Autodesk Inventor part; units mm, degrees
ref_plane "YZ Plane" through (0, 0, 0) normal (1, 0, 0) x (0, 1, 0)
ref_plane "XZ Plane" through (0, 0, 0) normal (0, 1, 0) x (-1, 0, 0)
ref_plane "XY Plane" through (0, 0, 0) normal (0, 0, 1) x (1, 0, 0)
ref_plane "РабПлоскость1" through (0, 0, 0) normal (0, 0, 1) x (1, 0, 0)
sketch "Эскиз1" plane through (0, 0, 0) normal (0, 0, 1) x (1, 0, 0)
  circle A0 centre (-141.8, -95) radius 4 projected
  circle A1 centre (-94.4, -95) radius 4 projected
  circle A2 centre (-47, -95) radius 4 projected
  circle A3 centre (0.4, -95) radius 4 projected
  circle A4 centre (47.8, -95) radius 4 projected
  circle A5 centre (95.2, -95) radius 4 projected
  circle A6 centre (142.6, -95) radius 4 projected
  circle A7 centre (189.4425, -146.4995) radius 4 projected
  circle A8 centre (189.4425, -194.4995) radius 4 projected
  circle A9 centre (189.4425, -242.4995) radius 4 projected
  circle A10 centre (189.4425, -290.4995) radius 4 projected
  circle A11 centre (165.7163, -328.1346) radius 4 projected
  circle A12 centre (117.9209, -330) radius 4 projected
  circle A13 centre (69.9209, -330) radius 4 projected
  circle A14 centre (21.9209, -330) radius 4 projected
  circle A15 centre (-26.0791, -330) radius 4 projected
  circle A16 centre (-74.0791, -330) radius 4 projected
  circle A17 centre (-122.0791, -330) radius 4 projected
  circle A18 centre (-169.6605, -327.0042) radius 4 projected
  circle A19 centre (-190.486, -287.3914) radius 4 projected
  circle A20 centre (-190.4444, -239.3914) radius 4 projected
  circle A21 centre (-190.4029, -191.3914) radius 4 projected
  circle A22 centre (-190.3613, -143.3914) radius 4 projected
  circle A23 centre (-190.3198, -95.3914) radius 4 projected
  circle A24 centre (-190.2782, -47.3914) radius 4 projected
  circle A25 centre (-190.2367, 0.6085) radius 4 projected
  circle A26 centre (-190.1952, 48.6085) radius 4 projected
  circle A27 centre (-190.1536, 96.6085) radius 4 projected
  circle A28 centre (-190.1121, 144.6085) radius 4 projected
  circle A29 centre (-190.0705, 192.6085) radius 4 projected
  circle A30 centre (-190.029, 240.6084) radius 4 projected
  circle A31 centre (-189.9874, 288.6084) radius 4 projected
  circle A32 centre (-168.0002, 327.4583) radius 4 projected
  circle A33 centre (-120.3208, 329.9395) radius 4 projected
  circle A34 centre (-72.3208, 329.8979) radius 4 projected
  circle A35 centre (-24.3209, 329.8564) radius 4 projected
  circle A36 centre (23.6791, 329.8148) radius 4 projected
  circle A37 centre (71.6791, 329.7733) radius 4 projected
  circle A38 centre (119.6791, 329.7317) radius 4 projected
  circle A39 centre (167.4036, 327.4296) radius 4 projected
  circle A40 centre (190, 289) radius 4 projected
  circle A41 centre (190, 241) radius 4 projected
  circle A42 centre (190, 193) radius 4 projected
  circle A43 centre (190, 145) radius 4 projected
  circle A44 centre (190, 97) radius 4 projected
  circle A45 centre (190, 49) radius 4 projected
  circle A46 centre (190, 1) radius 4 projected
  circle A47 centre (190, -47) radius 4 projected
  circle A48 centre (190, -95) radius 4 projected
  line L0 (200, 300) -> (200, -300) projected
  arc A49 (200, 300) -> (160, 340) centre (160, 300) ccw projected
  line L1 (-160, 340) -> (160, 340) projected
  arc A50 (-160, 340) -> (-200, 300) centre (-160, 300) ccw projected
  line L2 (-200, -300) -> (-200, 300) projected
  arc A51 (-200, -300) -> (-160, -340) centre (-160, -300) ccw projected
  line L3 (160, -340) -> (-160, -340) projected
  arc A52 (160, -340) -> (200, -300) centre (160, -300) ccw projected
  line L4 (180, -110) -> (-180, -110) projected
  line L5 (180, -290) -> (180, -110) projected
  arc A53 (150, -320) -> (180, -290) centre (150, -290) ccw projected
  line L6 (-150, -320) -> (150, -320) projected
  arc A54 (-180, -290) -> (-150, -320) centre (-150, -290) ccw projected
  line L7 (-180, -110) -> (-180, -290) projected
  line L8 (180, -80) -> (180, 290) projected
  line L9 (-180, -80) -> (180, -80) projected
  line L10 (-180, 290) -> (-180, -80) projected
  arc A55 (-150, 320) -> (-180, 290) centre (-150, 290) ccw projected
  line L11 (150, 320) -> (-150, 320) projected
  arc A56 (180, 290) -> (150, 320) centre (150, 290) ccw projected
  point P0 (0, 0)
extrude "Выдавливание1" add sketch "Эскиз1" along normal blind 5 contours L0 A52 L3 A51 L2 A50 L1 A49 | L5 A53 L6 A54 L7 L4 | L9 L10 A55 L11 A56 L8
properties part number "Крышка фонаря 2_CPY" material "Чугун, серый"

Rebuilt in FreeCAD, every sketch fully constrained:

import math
import FreeCAD as App
import Part
import Sketcher

doc = App.newDocument("Part")
body = doc.addObject("PartDesign::Body", "Body")

sketch1 = body.newObject("Sketcher::SketchObject", "Sketch")
sketch1.AttachmentSupport = (doc.getObject("XY_Plane"), [""])
sketch1.MapMode = "FlatFace"
sketch1.addGeometry(Part.LineSegment(App.Vector(200, -300, 0), App.Vector(200, 300, 0)), False)
sketch1.addGeometry(Part.ArcOfCircle(Part.Circle(App.Vector(160, 300, 0), App.Vector(0, 0, 1), 40), math.radians(0), math.radians(90)), False)
sketch1.addGeometry(Part.LineSegment(App.Vector(160, 340, 0), App.Vector(-160, 340, 0)), False)
sketch1.addGeometry(Part.ArcOfCircle(Part.Circle(App.Vector(-160, 300, 0), App.Vector(0, 0, 1), 40), math.radians(90), math.radians(180)), False)
sketch1.addGeometry(Part.LineSegment(App.Vector(-200, 300, 0), App.Vector(-200, -300, 0)), False)
sketch1.addGeometry(Part.ArcOfCircle(Part.Circle(App.Vector(-160, -300, 0), App.Vector(0, 0, 1), 40), math.radians(180), math.radians(270)), False)
sketch1.addGeometry(Part.LineSegment(App.Vector(-160, -340, 0), App.Vector(160, -340, 0)), False)
sketch1.addGeometry(Part.ArcOfCircle(Part.Circle(App.Vector(160, -300, 0), App.Vector(0, 0, 1), 40), math.radians(-90), math.radians(0)), False)
sketch1.addGeometry(Part.Circle(App.Vector(-169.7, -327, 0), App.Vector(0, 0, 1), 4), False)
sketch1.addGeometry(Part.Circle(App.Vector(-190.5, -287.4, 0), App.Vector(0, 0, 1), 4), False)
sketch1.addGeometry(Part.Circle(App.Vector(-122.1, -330, 0), App.Vector(0, 0, 1), 4), False)
sketch1.addGeometry(Part.Circle(App.Vector(-190.4, -239.4, 0), App.Vector(0, 0, 1), 4), False)
sketch1.addGeometry(Part.Circle(App.Vector(-190.4, -191.4, 0), App.Vector(0, 0, 1), 4), False)
sketch1.addGeometry(Part.Circle(App.Vector(-74.1, -330, 0), App.Vector(0, 0, 1), 4), False)
sketch1.addGeometry(Part.Circle(App.Vector(-26.1, -330, 0), App.Vector(0, 0, 1), 4), False)
sketch1.addGeometry(Part.Circle(App.Vector(-190.4, -143.4, 0), App.Vector(0, 0, 1), 4), False)
sketch1.addGeometry(Part.Circle(App.Vector(-190.3, -95.4, 0), App.Vector(0, 0, 1), 4), False)
sketch1.addGeometry(Part.Circle(App.Vector(-141.8, -95, 0), App.Vector(0, 0, 1), 4), False)
sketch1.addGeometry(Part.Circle(App.Vector(-190.3, -47.4, 0), App.Vector(0, 0, 1), 4), False)
sketch1.addGeometry(Part.Circle(App.Vector(-94.4, -95, 0), App.Vector(0, 0, 1), 4), False)
sketch1.addGeometry(Part.Circle(App.Vector(-47, -95, 0), App.Vector(0, 0, 1), 4), False)
sketch1.addGeometry(Part.Circle(App.Vector(21.9, -330, 0), App.Vector(0, 0, 1), 4), False)
sketch1.addGeometry(Part.Circle(App.Vector(69.9, -330, 0), App.Vector(0, 0, 1), 4), False)
sketch1.addGeometry(Part.Circle(App.Vector(117.9, -330, 0), App.Vector(0, 0, 1), 4), False)
sketch1.addGeometry(Part.Circle(App.Vector(165.7, -328.1, 0), App.Vector(0, 0, 1), 4), False)
sketch1.addGeometry(Part.Circle(App.Vector(189.4, -290.5, 0), App.Vector(0, 0, 1), 4), False)
sketch1.addGeometry(Part.Circle(App.Vector(189.4, -242.5, 0), App.Vector(0, 0, 1), 4), False)
sketch1.addGeometry(Part.Circle(App.Vector(189.4, -194.5, 0), App.Vector(0, 0, 1), 4), False)
sketch1.addGeometry(Part.Circle(App.Vector(0.4, -95, 0), App.Vector(0, 0, 1), 4), False)
sketch1.addGeometry(Part.Circle(App.Vector(47.8, -95, 0), App.Vector(0, 0, 1), 4), False)
sketch1.addGeometry(Part.Circle(App.Vector(95.2, -95, 0), App.Vector(0, 0, 1), 4), False)
sketch1.addGeometry(Part.Circle(App.Vector(142.6, -95, 0), App.Vector(0, 0, 1), 4), False)
sketch1.addGeometry(Part.Circle(App.Vector(189.4, -146.5, 0), App.Vector(0, 0, 1), 4), False)
sketch1.addGeometry(Part.Circle(App.Vector(190, -95, 0), App.Vector(0, 0, 1), 4), False)
sketch1.addGeometry(Part.Circle(App.Vector(190, -47, 0), App.Vector(0, 0, 1), 4), False)
sketch1.addGeometry(Part.Circle(App.Vector(-190.2, 0.6, 0), App.Vector(0, 0, 1), 4), False)
sketch1.addGeometry(Part.Circle(App.Vector(-190.2, 48.6, 0), App.Vector(0, 0, 1), 4), False)
sketch1.addGeometry(Part.Circle(App.Vector(-190.2, 96.6, 0), App.Vector(0, 0, 1), 4), False)
sketch1.addGeometry(Part.Circle(App.Vector(-190.1, 144.6, 0), App.Vector(0, 0, 1), 4), False)
sketch1.addGeometry(Part.Circle(App.Vector(-190.1, 192.6, 0), App.Vector(0, 0, 1), 4), False)
sketch1.addGeometry(Part.Circle(App.Vector(-190, 240.6, 0), App.Vector(0, 0, 1), 4), False)
sketch1.addGeometry(Part.Circle(App.Vector(-190, 288.6, 0), App.Vector(0, 0, 1), 4), False)
sketch1.addGeometry(Part.Circle(App.Vector(-168, 327.5, 0), App.Vector(0, 0, 1), 4), False)
sketch1.addGeometry(Part.Circle(App.Vector(-120.3, 329.9, 0), App.Vector(0, 0, 1), 4), False)
sketch1.addGeometry(Part.Circle(App.Vector(-72.3, 329.9, 0), App.Vector(0, 0, 1), 4), False)
sketch1.addGeometry(Part.Circle(App.Vector(-24.3, 329.9, 0), App.Vector(0, 0, 1), 4), False)
sketch1.addGeometry(Part.Circle(App.Vector(190, 1, 0), App.Vector(0, 0, 1), 4), False)
sketch1.addGeometry(Part.Circle(App.Vector(190, 49, 0), App.Vector(0, 0, 1), 4), False)
sketch1.addGeometry(Part.Circle(App.Vector(190, 97, 0), App.Vector(0, 0, 1), 4), False)
sketch1.addGeometry(Part.Circle(App.Vector(190, 145, 0), App.Vector(0, 0, 1), 4), False)
sketch1.addGeometry(Part.Circle(App.Vector(23.7, 329.8, 0), App.Vector(0, 0, 1), 4), False)
sketch1.addGeometry(Part.Circle(App.Vector(71.7, 329.8, 0), App.Vector(0, 0, 1), 4), False)
sketch1.addGeometry(Part.Circle(App.Vector(190, 193, 0), App.Vector(0, 0, 1), 4), False)
sketch1.addGeometry(Part.Circle(App.Vector(190, 241, 0), App.Vector(0, 0, 1), 4), False)
sketch1.addGeometry(Part.Circle(App.Vector(119.7, 329.7, 0), App.Vector(0, 0, 1), 4), False)
sketch1.addGeometry(Part.Circle(App.Vector(190, 289, 0), App.Vector(0, 0, 1), 4), False)
sketch1.addGeometry(Part.Circle(App.Vector(167.4, 327.4, 0), App.Vector(0, 0, 1), 4), False)
sketch1.addConstraint(Sketcher.Constraint("Tangent", 0, 2, 1, 1))
sketch1.addConstraint(Sketcher.Constraint("Tangent", 1, 2, 2, 1))
sketch1.addConstraint(Sketcher.Constraint("Tangent", 2, 2, 3, 1))
sketch1.addConstraint(Sketcher.Constraint("Tangent", 3, 2, 4, 1))
sketch1.addConstraint(Sketcher.Constraint("Tangent", 4, 2, 5, 1))
sketch1.addConstraint(Sketcher.Constraint("Tangent", 5, 2, 6, 1))
sketch1.addConstraint(Sketcher.Constraint("Tangent", 6, 2, 7, 1))
sketch1.addConstraint(Sketcher.Constraint("Tangent", 7, 2, 0, 1))
sketch1.addConstraint(Sketcher.Constraint("Vertical", 0))
sketch1.addConstraint(Sketcher.Constraint("Horizontal", 2))
sketch1.addConstraint(Sketcher.Constraint("Vertical", 4))
sketch1.addConstraint(Sketcher.Constraint("Horizontal", 6))
sketch1.addConstraint(Sketcher.Constraint("Equal", 1, 3))
sketch1.addConstraint(Sketcher.Constraint("Equal", 3, 5))
sketch1.addConstraint(Sketcher.Constraint("Equal", 5, 7))
sketch1.addConstraint(Sketcher.Constraint("Equal", 8, 9))
sketch1.addConstraint(Sketcher.Constraint("Equal", 9, 10))
sketch1.addConstraint(Sketcher.Constraint("Equal", 10, 11))
sketch1.addConstraint(Sketcher.Constraint("Equal", 11, 12))
sketch1.addConstraint(Sketcher.Constraint("Equal", 12, 13))
sketch1.addConstraint(Sketcher.Constraint("Equal", 13, 14))
sketch1.addConstraint(Sketcher.Constraint("Equal", 14, 15))
sketch1.addConstraint(Sketcher.Constraint("Equal", 15, 16))
sketch1.addConstraint(Sketcher.Constraint("Equal", 16, 17))
sketch1.addConstraint(Sketcher.Constraint("Equal", 17, 18))
sketch1.addConstraint(Sketcher.Constraint("Equal", 18, 19))
sketch1.addConstraint(Sketcher.Constraint("Equal", 19, 20))
sketch1.addConstraint(Sketcher.Constraint("Equal", 20, 21))
sketch1.addConstraint(Sketcher.Constraint("Equal", 21, 22))
sketch1.addConstraint(Sketcher.Constraint("Equal", 22, 23))
sketch1.addConstraint(Sketcher.Constraint("Equal", 23, 24))
sketch1.addConstraint(Sketcher.Constraint("Equal", 24, 25))
sketch1.addConstraint(Sketcher.Constraint("Equal", 25, 26))
sketch1.addConstraint(Sketcher.Constraint("Equal", 26, 27))
sketch1.addConstraint(Sketcher.Constraint("Equal", 27, 28))
sketch1.addConstraint(Sketcher.Constraint("Equal", 28, 29))
sketch1.addConstraint(Sketcher.Constraint("Equal", 29, 30))
sketch1.addConstraint(Sketcher.Constraint("Equal", 30, 31))
sketch1.addConstraint(Sketcher.Constraint("Equal", 31, 32))
sketch1.addConstraint(Sketcher.Constraint("Equal", 32, 33))
sketch1.addConstraint(Sketcher.Constraint("Equal", 33, 34))
sketch1.addConstraint(Sketcher.Constraint("Equal", 34, 35))
sketch1.addConstraint(Sketcher.Constraint("Equal", 35, 36))
sketch1.addConstraint(Sketcher.Constraint("Equal", 36, 37))
sketch1.addConstraint(Sketcher.Constraint("Equal", 37, 38))
sketch1.addConstraint(Sketcher.Constraint("Equal", 38, 39))
sketch1.addConstraint(Sketcher.Constraint("Equal", 39, 40))
sketch1.addConstraint(Sketcher.Constraint("Equal", 40, 41))
sketch1.addConstraint(Sketcher.Constraint("Equal", 41, 42))
sketch1.addConstraint(Sketcher.Constraint("Equal", 42, 43))
sketch1.addConstraint(Sketcher.Constraint("Equal", 43, 44))
sketch1.addConstraint(Sketcher.Constraint("Equal", 44, 45))
sketch1.addConstraint(Sketcher.Constraint("Equal", 45, 46))
sketch1.addConstraint(Sketcher.Constraint("Equal", 46, 47))
sketch1.addConstraint(Sketcher.Constraint("Equal", 47, 48))
sketch1.addConstraint(Sketcher.Constraint("Equal", 48, 49))
sketch1.addConstraint(Sketcher.Constraint("Equal", 49, 50))
sketch1.addConstraint(Sketcher.Constraint("Equal", 50, 51))
sketch1.addConstraint(Sketcher.Constraint("Equal", 51, 52))
sketch1.addConstraint(Sketcher.Constraint("Equal", 52, 53))
sketch1.addConstraint(Sketcher.Constraint("Equal", 53, 54))
sketch1.addConstraint(Sketcher.Constraint("Equal", 54, 55))
sketch1.addConstraint(Sketcher.Constraint("Equal", 55, 56))
sketch1.addConstraint(Sketcher.Constraint("Symmetric", 1, 3, 5, 3, -1, 1))
sketch1.addConstraint(Sketcher.Constraint("Horizontal", 10, 3, 13, 3))
sketch1.addConstraint(Sketcher.Constraint("Horizontal", 13, 3, 14, 3))
sketch1.addConstraint(Sketcher.Constraint("Horizontal", 17, 3, 19, 3))
sketch1.addConstraint(Sketcher.Constraint("Horizontal", 19, 3, 20, 3))
sketch1.addConstraint(Sketcher.Constraint("Horizontal", 14, 3, 21, 3))
sketch1.addConstraint(Sketcher.Constraint("Horizontal", 21, 3, 22, 3))
sketch1.addConstraint(Sketcher.Constraint("Horizontal", 22, 3, 23, 3))
sketch1.addConstraint(Sketcher.Constraint("Horizontal", 20, 3, 28, 3))
sketch1.addConstraint(Sketcher.Constraint("Horizontal", 28, 3, 29, 3))
sketch1.addConstraint(Sketcher.Constraint("Horizontal", 29, 3, 30, 3))
sketch1.addConstraint(Sketcher.Constraint("Horizontal", 30, 3, 31, 3))
sketch1.addConstraint(Sketcher.Constraint("Horizontal", 31, 3, 33, 3))
sketch1.addConstraint(Sketcher.Constraint("Vertical", 25, 3, 26, 3))
sketch1.addConstraint(Sketcher.Constraint("Vertical", 26, 3, 27, 3))
sketch1.addConstraint(Sketcher.Constraint("Vertical", 27, 3, 32, 3))
sketch1.addConstraint(Sketcher.Constraint("Vertical", 33, 3, 34, 3))
sketch1.addConstraint(Sketcher.Constraint("Vertical", 34, 3, 46, 3))
sketch1.addConstraint(Sketcher.Constraint("Vertical", 46, 3, 47, 3))
sketch1.addConstraint(Sketcher.Constraint("Vertical", 47, 3, 48, 3))
sketch1.addConstraint(Sketcher.Constraint("Vertical", 48, 3, 49, 3))
sketch1.addConstraint(Sketcher.Constraint("Vertical", 49, 3, 52, 3))
sketch1.addConstraint(Sketcher.Constraint("Vertical", 52, 3, 53, 3))
sketch1.addConstraint(Sketcher.Constraint("Vertical", 53, 3, 55, 3))
sketch1.addConstraint(Sketcher.Constraint("Diameter", 8, 8.0))
sketch1.addConstraint(Sketcher.Constraint("Radius", 1, 40.0))
sketch1.addConstraint(Sketcher.Constraint("DistanceX", 2, 2, 2, 1, 320.0))
sketch1.addConstraint(Sketcher.Constraint("DistanceY", 0, 1, 0, 2, 600.0))
sketch1.addConstraint(Sketcher.Constraint("DistanceY", 10, 3, -1, 1, 330.0))
sketch1.addConstraint(Sketcher.Constraint("DistanceY", 17, 3, -1, 1, 95.0))
sketch1.addConstraint(Sketcher.Constraint("DistanceX", 20, 3, -1, 1, 47.0))
sketch1.addConstraint(Sketcher.Constraint("DistanceX", -1, 1, 33, 3, 190.0))
sketch1.addConstraint(Sketcher.Constraint("DistanceY", 34, 3, -1, 1, 47.0))
sketch1.addConstraint(Sketcher.Constraint("DistanceY", -1, 1, 46, 3, 1.0))
sketch1.addConstraint(Sketcher.Constraint("DistanceY", -1, 1, 47, 3, 49.0))
sketch1.addConstraint(Sketcher.Constraint("DistanceY", -1, 1, 48, 3, 97.0))
sketch1.addConstraint(Sketcher.Constraint("DistanceY", -1, 1, 49, 3, 145.0))
sketch1.addConstraint(Sketcher.Constraint("DistanceY", -1, 1, 52, 3, 193.0))
sketch1.addConstraint(Sketcher.Constraint("DistanceY", -1, 1, 53, 3, 241.0))
sketch1.addConstraint(Sketcher.Constraint("DistanceY", -1, 1, 55, 3, 289.0))
sketch1.addConstraint(Sketcher.Constraint("DistanceX", 17, 3, -1, 1, 141.8))
sketch1.addConstraint(Sketcher.Constraint("DistanceX", 19, 3, -1, 1, 94.4))
sketch1.addConstraint(Sketcher.Constraint("DistanceX", -1, 1, 28, 3, 0.4))
sketch1.addConstraint(Sketcher.Constraint("DistanceX", -1, 1, 29, 3, 47.8))
sketch1.addConstraint(Sketcher.Constraint("DistanceX", -1, 1, 30, 3, 95.2))
sketch1.addConstraint(Sketcher.Constraint("DistanceX", -1, 1, 31, 3, 142.6))
sketch1.addConstraint(Sketcher.Constraint("DistanceX", 9, 3, -1, 1, 190.486))
sketch1.addConstraint(Sketcher.Constraint("DistanceX", 10, 3, -1, 1, 122.079))
sketch1.addConstraint(Sketcher.Constraint("DistanceX", 12, 3, -1, 1, 190.403))
sketch1.addConstraint(Sketcher.Constraint("DistanceX", 13, 3, -1, 1, 74.079))
sketch1.addConstraint(Sketcher.Constraint("DistanceX", 14, 3, -1, 1, 26.079))
sketch1.addConstraint(Sketcher.Constraint("DistanceX", -1, 1, 21, 3, 21.921))
sketch1.addConstraint(Sketcher.Constraint("DistanceX", -1, 1, 22, 3, 69.921))
sketch1.addConstraint(Sketcher.Constraint("DistanceX", -1, 1, 23, 3, 117.921))
sketch1.addConstraint(Sketcher.Constraint("DistanceX", 38, 3, -1, 1, 190.112))
sketch1.addConstraint(Sketcher.Constraint("DistanceX", 40, 3, -1, 1, 190.029))
sketch1.addConstraint(Sketcher.Constraint("DistanceY", -1, 1, 44, 3, 329.898))
sketch1.addConstraint(Sketcher.Constraint("DistanceX", 45, 3, -1, 1, 24.321))
sketch1.addConstraint(Sketcher.Constraint("DistanceX", -1, 1, 50, 3, 23.679))
sketch1.addConstraint(Sketcher.Constraint("DistanceX", -1, 1, 51, 3, 71.679))
sketch1.addConstraint(Sketcher.Constraint("DistanceX", -1, 1, 54, 3, 119.679))
sketch1.addConstraint(Sketcher.Constraint("DistanceX", 8, 3, -1, 1, 169.6605))
sketch1.addConstraint(Sketcher.Constraint("DistanceY", 8, 3, -1, 1, 327.0042))
sketch1.addConstraint(Sketcher.Constraint("DistanceY", 9, 3, -1, 1, 287.3914))
sketch1.addConstraint(Sketcher.Constraint("DistanceX", 11, 3, -1, 1, 190.4444))
sketch1.addConstraint(Sketcher.Constraint("DistanceY", 11, 3, -1, 1, 239.3914))
sketch1.addConstraint(Sketcher.Constraint("DistanceY", 12, 3, -1, 1, 191.3914))
sketch1.addConstraint(Sketcher.Constraint("DistanceX", 15, 3, -1, 1, 190.3613))
sketch1.addConstraint(Sketcher.Constraint("DistanceY", 15, 3, -1, 1, 143.3914))
sketch1.addConstraint(Sketcher.Constraint("DistanceX", 16, 3, -1, 1, 190.3198))
sketch1.addConstraint(Sketcher.Constraint("DistanceY", 16, 3, -1, 1, 95.3914))
sketch1.addConstraint(Sketcher.Constraint("DistanceX", 18, 3, -1, 1, 190.2782))
sketch1.addConstraint(Sketcher.Constraint("DistanceY", 18, 3, -1, 1, 47.3914))
sketch1.addConstraint(Sketcher.Constraint("DistanceX", -1, 1, 24, 3, 165.7163))
sketch1.addConstraint(Sketcher.Constraint("DistanceY", 24, 3, -1, 1, 328.1346))
sketch1.addConstraint(Sketcher.Constraint("DistanceX", -1, 1, 25, 3, 189.4425))
sketch1.addConstraint(Sketcher.Constraint("DistanceY", 25, 3, -1, 1, 290.4995))
sketch1.addConstraint(Sketcher.Constraint("DistanceY", 26, 3, -1, 1, 242.4995))
sketch1.addConstraint(Sketcher.Constraint("DistanceY", 27, 3, -1, 1, 194.4995))
sketch1.addConstraint(Sketcher.Constraint("DistanceY", 32, 3, -1, 1, 146.4995))
sketch1.addConstraint(Sketcher.Constraint("DistanceX", 35, 3, -1, 1, 190.2367))
sketch1.addConstraint(Sketcher.Constraint("DistanceY", -1, 1, 35, 3, 0.6085))
sketch1.addConstraint(Sketcher.Constraint("DistanceX", 36, 3, -1, 1, 190.1952))
sketch1.addConstraint(Sketcher.Constraint("DistanceY", -1, 1, 36, 3, 48.6085))
sketch1.addConstraint(Sketcher.Constraint("DistanceX", 37, 3, -1, 1, 190.1536))
sketch1.addConstraint(Sketcher.Constraint("DistanceY", -1, 1, 37, 3, 96.6085))
sketch1.addConstraint(Sketcher.Constraint("DistanceY", -1, 1, 38, 3, 144.6085))
sketch1.addConstraint(Sketcher.Constraint("DistanceX", 39, 3, -1, 1, 190.0705))
sketch1.addConstraint(Sketcher.Constraint("DistanceY", -1, 1, 39, 3, 192.6085))
sketch1.addConstraint(Sketcher.Constraint("DistanceY", -1, 1, 40, 3, 240.6084))
sketch1.addConstraint(Sketcher.Constraint("DistanceX", 41, 3, -1, 1, 189.9874))
sketch1.addConstraint(Sketcher.Constraint("DistanceY", -1, 1, 41, 3, 288.6084))
sketch1.addConstraint(Sketcher.Constraint("DistanceX", 42, 3, -1, 1, 168.0002))
sketch1.addConstraint(Sketcher.Constraint("DistanceY", -1, 1, 42, 3, 327.4583))
sketch1.addConstraint(Sketcher.Constraint("DistanceX", 43, 3, -1, 1, 120.3208))
sketch1.addConstraint(Sketcher.Constraint("DistanceY", -1, 1, 43, 3, 329.9395))
sketch1.addConstraint(Sketcher.Constraint("DistanceX", 44, 3, -1, 1, 72.3208))
sketch1.addConstraint(Sketcher.Constraint("DistanceY", -1, 1, 45, 3, 329.8564))
sketch1.addConstraint(Sketcher.Constraint("DistanceY", -1, 1, 50, 3, 329.8148))
sketch1.addConstraint(Sketcher.Constraint("DistanceY", -1, 1, 51, 3, 329.7733))
sketch1.addConstraint(Sketcher.Constraint("DistanceY", -1, 1, 54, 3, 329.7317))
sketch1.addConstraint(Sketcher.Constraint("DistanceX", -1, 1, 56, 3, 167.4036))
sketch1.addConstraint(Sketcher.Constraint("DistanceY", -1, 1, 56, 3, 327.4296))
pad1 = body.newObject("PartDesign::Pad", "Pad")
pad1.Profile = sketch1
pad1.Length = 5

doc.recompute()
